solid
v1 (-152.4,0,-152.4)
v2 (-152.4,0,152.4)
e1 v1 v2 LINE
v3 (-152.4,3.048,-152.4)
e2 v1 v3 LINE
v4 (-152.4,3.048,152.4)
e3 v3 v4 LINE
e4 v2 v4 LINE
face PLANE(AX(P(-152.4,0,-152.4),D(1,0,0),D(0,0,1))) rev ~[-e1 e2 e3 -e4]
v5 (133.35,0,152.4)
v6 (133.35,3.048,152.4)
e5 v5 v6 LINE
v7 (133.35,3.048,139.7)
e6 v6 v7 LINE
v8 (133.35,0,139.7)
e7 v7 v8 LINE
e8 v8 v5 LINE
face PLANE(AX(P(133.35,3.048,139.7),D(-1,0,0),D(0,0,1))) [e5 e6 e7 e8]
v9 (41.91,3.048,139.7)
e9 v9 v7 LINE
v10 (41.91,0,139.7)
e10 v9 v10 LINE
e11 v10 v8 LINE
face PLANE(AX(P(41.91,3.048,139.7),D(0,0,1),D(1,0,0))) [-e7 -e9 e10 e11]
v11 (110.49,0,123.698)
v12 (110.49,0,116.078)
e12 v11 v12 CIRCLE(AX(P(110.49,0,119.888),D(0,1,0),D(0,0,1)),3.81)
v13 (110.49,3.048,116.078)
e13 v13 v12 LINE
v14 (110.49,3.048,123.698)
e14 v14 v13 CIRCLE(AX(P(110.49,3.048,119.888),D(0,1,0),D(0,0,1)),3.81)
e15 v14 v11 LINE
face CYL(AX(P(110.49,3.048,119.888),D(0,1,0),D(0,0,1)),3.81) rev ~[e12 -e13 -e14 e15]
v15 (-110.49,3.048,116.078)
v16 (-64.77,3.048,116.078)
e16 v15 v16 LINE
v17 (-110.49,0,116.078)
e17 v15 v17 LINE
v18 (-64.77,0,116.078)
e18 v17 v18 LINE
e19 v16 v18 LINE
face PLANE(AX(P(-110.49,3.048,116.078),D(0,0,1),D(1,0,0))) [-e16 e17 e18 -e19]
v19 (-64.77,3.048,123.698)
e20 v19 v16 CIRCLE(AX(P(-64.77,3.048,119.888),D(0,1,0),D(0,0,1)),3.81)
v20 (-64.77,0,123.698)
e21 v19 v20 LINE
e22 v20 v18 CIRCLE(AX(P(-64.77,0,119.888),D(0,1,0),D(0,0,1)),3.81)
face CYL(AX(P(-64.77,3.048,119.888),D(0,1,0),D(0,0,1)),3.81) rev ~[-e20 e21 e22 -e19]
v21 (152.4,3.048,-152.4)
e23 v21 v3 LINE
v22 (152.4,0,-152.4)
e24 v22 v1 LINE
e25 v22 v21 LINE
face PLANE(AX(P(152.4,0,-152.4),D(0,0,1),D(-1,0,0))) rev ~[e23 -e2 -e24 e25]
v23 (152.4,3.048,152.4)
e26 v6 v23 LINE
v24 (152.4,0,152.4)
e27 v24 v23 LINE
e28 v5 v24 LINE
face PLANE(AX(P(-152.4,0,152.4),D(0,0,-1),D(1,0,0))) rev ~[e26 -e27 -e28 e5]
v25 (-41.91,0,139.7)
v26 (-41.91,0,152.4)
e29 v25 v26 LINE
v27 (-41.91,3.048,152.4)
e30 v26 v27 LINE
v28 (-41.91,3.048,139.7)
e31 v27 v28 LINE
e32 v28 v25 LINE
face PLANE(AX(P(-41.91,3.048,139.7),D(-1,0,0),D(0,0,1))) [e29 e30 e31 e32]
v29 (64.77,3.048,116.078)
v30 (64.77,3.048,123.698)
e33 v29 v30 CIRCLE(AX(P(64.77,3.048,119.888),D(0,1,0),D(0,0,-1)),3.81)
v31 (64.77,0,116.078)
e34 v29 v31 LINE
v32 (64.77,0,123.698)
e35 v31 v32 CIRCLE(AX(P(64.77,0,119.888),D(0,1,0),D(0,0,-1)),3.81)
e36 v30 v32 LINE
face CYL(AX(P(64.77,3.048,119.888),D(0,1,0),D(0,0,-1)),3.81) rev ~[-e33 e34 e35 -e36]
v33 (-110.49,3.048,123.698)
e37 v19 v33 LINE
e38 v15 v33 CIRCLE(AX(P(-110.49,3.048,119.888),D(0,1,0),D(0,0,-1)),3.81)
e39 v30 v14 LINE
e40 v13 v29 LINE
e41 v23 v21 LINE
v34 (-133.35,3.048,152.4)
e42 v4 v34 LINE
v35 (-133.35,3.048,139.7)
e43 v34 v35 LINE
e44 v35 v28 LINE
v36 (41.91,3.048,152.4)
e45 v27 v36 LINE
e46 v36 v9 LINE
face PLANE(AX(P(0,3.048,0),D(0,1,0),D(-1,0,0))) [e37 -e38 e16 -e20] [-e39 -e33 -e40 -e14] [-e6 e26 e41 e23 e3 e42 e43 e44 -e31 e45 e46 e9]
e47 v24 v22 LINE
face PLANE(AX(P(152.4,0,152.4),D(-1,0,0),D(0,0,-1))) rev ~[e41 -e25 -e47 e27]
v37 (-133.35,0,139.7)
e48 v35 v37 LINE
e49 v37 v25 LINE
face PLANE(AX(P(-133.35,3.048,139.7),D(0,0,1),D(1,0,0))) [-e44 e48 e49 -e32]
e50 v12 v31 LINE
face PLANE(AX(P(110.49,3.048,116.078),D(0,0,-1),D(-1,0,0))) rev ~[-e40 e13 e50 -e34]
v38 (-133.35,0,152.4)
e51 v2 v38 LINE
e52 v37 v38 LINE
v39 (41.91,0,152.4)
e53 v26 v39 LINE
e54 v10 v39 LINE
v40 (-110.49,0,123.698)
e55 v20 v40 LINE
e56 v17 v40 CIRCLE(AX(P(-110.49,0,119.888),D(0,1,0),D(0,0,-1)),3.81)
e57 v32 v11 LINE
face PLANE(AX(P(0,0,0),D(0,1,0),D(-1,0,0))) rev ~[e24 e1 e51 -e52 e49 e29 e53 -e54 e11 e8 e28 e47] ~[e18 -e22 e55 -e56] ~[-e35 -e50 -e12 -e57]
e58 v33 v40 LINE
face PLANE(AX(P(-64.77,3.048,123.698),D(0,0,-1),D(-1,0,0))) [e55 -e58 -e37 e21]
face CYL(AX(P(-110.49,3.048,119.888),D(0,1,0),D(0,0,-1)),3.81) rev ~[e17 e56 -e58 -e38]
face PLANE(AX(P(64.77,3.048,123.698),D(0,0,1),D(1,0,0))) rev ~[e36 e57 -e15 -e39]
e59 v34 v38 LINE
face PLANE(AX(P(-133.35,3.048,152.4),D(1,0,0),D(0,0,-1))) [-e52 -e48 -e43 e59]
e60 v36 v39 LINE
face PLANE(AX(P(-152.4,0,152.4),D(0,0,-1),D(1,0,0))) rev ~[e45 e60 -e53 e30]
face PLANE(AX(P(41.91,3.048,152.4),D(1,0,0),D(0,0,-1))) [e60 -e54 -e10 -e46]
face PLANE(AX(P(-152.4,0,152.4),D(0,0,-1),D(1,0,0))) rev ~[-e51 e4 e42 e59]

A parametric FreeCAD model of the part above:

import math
import FreeCAD as App
import Part
import Sketcher

V = App.Vector
Q = App.Units.Quantity


def add_polygon(sketch, points):
    """Adds a closed chain of lines whose ends are joined by coincident constraints."""
    first, n = sketch.GeometryCount, len(points)
    for a, b in zip(points, points[1:] + points[:1]):
        sketch.addGeometry(Part.LineSegment(App.Vector(*a, 0), App.Vector(*b, 0)), False)
    for i in range(n):
        sketch.addConstraint(Sketcher.Constraint("Coincident", first + i, 2, first + (i + 1) % n, 1))

doc = App.newDocument("Part")
params = doc.addObject("Spreadsheet::Sheet", "Params")
for row, (alias, value) in enumerate([
    ("sketch1_width", "12 in"),
    ("pad1_length", "0.12 in"),
    ("sketch2_height", "1 in"),
    ("sketch2_width", "3.6 in"),
    ("pocket1_length", "0.12 in"),
    ("sketch3_radius", "0.15 in"),
    ("sketch3_width", "1.8 in"),
    ("pocket2_length", "0.12 in"),
], start=1):
    params.set(f"A{row}", alias)
    params.set(f"B{row}", "=" + value)
    params.setAlias(f"B{row}", alias)

body = doc.addObject("PartDesign::Body", "Body")

# Sketch on XZ plane
sketch1 = doc.addObject("Sketcher::SketchObject", "Sketch")
body.addObject(sketch1)
sketch1.AttachmentSupport = (doc.XZ_Plane, [""])
sketch1.MapMode = "FlatFace"
add_polygon(sketch1, [(-152.4, -152.4), (-152.4, 152.4), (152.4, 152.4), (152.4, -152.4)])  # lines 0-3
sketch1.addConstraint(Sketcher.Constraint("Vertical", 0))
sketch1.addConstraint(Sketcher.Constraint("Horizontal", 1))
sketch1.addConstraint(Sketcher.Constraint("Vertical", 2))
sketch1.addConstraint(Sketcher.Constraint("Horizontal", 3))
sketch1.addConstraint(Sketcher.Constraint("Symmetric", 0, 2, 2, 2, -1, 1))
sketch1.addConstraint(Sketcher.Constraint("Equal", 3, 0))
sketch1.addConstraint(Sketcher.Constraint("DistanceX", 1, 1, 1, 2, Q("12 in")))
sketch1.setExpression("Constraints[10]", "Params.sketch1_width")
pad1 = doc.addObject("PartDesign::Pad", "Pad")
body.addObject(pad1)
pad1.Profile = sketch1
pad1.setExpression("Length", "Params.pad1_length")
pad1.Reversed = True

# Sketch on XZ plane
sketch2 = doc.addObject("Sketcher::SketchObject", "Sketch001")
body.addObject(sketch2)
sketch2.AttachmentSupport = (doc.XZ_Plane, [""])
sketch2.MapMode = "FlatFace"
sketch2.AttachmentOffset = App.Placement(V(0, 0, -0.12 * 25.4), App.Rotation())
add_polygon(sketch2, [(-133.35, 139.7), (-133.35, 165.1), (-41.91, 165.1), (-41.91, 139.7)])  # lines 0-3
add_polygon(sketch2, [(41.91, 139.7), (41.91, 165.1), (133.35, 165.1), (133.35, 139.7)])  # lines 4-7
sketch2.addConstraint(Sketcher.Constraint("Vertical", 0))
sketch2.addConstraint(Sketcher.Constraint("Horizontal", 1))
sketch2.addConstraint(Sketcher.Constraint("Vertical", 2))
sketch2.addConstraint(Sketcher.Constraint("Horizontal", 3))
sketch2.addConstraint(Sketcher.Constraint("Vertical", 4))
sketch2.addConstraint(Sketcher.Constraint("Horizontal", 5))
sketch2.addConstraint(Sketcher.Constraint("Vertical", 6))
sketch2.addConstraint(Sketcher.Constraint("Horizontal", 7))
sketch2.addConstraint(Sketcher.Constraint("Symmetric", 1, 2, 4, 2, -2))
sketch2.addConstraint(Sketcher.Constraint("Symmetric", 3, 2, 6, 2, -2))
sketch2.addConstraint(Sketcher.Constraint("DistanceY", 0, 1, 0, 2, Q("1 in")))
sketch2.addConstraint(Sketcher.Constraint("DistanceX", 1, 1, 1, 2, Q("3.6 in")))
sketch2.addConstraint(Sketcher.Constraint("DistanceY", -1, 1, 0, 2, Q("6.5 in")))
sketch2.addConstraint(Sketcher.Constraint("DistanceX", 1, 2, 4, 2, Q("3.3 in")))
sketch2.setExpression("Constraints[18]", "Params.sketch2_height")
sketch2.setExpression("Constraints[19]", "Params.sketch2_width")
pocket1 = doc.addObject("PartDesign::Pocket", "Pocket")
body.addObject(pocket1)
pocket1.Profile = sketch2
pocket1.setExpression("Length", "Params.pocket1_length")
pocket1.Reversed = True

# Sketch on XZ plane
sketch3 = doc.addObject("Sketcher::SketchObject", "Sketch002")
body.addObject(sketch3)
sketch3.AttachmentSupport = (doc.XZ_Plane, [""])
sketch3.MapMode = "FlatFace"
sketch3.AttachmentOffset = App.Placement(V(0, 0, -0.12 * 25.4), App.Rotation())
sketch3.addGeometry(Part.LineSegment(V(-64.77, 116.078, 0), V(-110.49, 116.078, 0)), False)
sketch3.addGeometry(Part.ArcOfCircle(Part.Circle(V(-110.49, 119.888, 0), V(0, 0, 1), 3.81), math.radians(90), math.radians(270)), False)
sketch3.addGeometry(Part.LineSegment(V(-110.49, 123.698, 0), V(-64.77, 123.698, 0)), False)
sketch3.addGeometry(Part.ArcOfCircle(Part.Circle(V(-64.77, 119.888, 0), V(0, 0, 1), 3.81), math.radians(-90), math.radians(90)), False)
sketch3.addGeometry(Part.ArcOfCircle(Part.Circle(V(110.49, 119.888, 0), V(0, 0, 1), 3.81), math.radians(-90), math.radians(90)), False)
sketch3.addGeometry(Part.LineSegment(V(110.49, 116.078, 0), V(64.77, 116.078, 0)), False)
sketch3.addGeometry(Part.ArcOfCircle(Part.Circle(V(64.77, 119.888, 0), V(0, 0, 1), 3.81), math.radians(90), math.radians(270)), False)
sketch3.addGeometry(Part.LineSegment(V(64.77, 123.698, 0), V(110.49, 123.698, 0)), False)
sketch3.addConstraint(Sketcher.Constraint("Tangent", 0, 2, 1, 2))
sketch3.addConstraint(Sketcher.Constraint("Tangent", 1, 1, 2, 1))
sketch3.addConstraint(Sketcher.Constraint("Tangent", 2, 2, 3, 2))
sketch3.addConstraint(Sketcher.Constraint("Tangent", 3, 1, 0, 1))
sketch3.addConstraint(Sketcher.Constraint("Tangent", 4, 1, 5, 1))
sketch3.addConstraint(Sketcher.Constraint("Tangent", 5, 2, 6, 2))
sketch3.addConstraint(Sketcher.Constraint("Tangent", 6, 1, 7, 1))
sketch3.addConstraint(Sketcher.Constraint("Tangent", 7, 2, 4, 2))
sketch3.addConstraint(Sketcher.Constraint("Horizontal", 0))
sketch3.addConstraint(Sketcher.Constraint("Horizontal", 2))
sketch3.addConstraint(Sketcher.Constraint("Horizontal", 5))
sketch3.addConstraint(Sketcher.Constraint("Horizontal", 7))
sketch3.addConstraint(Sketcher.Constraint("Equal", 3, 4))
sketch3.addConstraint(Sketcher.Constraint("Symmetric", 1, 3, 4, 3, -2))
sketch3.addConstraint(Sketcher.Constraint("Equal", 2, 5))
sketch3.addConstraint(Sketcher.Constraint("Radius", 1, Q("0.15 in")))
sketch3.addConstraint(Sketcher.Constraint("DistanceX", 0, 2, 0, 1, Q("1.8 in")))
sketch3.addConstraint(Sketcher.Constraint("DistanceX", 3, 3, 4, 3, Q("6.9 in")))
sketch3.addConstraint(Sketcher.Constraint("DistanceY", -1, 1, 1, 3, Q("4.72 in")))
sketch3.setExpression("Constraints[15]", "Params.sketch3_radius")
sketch3.setExpression("Constraints[16]", "Params.sketch3_width")
pocket2 = doc.addObject("PartDesign::Pocket", "Pocket001")
body.addObject(pocket2)
pocket2.Profile = sketch3
pocket2.setExpression("Length", "Params.pocket2_length")
pocket2.Reversed = True

doc.recompute()
